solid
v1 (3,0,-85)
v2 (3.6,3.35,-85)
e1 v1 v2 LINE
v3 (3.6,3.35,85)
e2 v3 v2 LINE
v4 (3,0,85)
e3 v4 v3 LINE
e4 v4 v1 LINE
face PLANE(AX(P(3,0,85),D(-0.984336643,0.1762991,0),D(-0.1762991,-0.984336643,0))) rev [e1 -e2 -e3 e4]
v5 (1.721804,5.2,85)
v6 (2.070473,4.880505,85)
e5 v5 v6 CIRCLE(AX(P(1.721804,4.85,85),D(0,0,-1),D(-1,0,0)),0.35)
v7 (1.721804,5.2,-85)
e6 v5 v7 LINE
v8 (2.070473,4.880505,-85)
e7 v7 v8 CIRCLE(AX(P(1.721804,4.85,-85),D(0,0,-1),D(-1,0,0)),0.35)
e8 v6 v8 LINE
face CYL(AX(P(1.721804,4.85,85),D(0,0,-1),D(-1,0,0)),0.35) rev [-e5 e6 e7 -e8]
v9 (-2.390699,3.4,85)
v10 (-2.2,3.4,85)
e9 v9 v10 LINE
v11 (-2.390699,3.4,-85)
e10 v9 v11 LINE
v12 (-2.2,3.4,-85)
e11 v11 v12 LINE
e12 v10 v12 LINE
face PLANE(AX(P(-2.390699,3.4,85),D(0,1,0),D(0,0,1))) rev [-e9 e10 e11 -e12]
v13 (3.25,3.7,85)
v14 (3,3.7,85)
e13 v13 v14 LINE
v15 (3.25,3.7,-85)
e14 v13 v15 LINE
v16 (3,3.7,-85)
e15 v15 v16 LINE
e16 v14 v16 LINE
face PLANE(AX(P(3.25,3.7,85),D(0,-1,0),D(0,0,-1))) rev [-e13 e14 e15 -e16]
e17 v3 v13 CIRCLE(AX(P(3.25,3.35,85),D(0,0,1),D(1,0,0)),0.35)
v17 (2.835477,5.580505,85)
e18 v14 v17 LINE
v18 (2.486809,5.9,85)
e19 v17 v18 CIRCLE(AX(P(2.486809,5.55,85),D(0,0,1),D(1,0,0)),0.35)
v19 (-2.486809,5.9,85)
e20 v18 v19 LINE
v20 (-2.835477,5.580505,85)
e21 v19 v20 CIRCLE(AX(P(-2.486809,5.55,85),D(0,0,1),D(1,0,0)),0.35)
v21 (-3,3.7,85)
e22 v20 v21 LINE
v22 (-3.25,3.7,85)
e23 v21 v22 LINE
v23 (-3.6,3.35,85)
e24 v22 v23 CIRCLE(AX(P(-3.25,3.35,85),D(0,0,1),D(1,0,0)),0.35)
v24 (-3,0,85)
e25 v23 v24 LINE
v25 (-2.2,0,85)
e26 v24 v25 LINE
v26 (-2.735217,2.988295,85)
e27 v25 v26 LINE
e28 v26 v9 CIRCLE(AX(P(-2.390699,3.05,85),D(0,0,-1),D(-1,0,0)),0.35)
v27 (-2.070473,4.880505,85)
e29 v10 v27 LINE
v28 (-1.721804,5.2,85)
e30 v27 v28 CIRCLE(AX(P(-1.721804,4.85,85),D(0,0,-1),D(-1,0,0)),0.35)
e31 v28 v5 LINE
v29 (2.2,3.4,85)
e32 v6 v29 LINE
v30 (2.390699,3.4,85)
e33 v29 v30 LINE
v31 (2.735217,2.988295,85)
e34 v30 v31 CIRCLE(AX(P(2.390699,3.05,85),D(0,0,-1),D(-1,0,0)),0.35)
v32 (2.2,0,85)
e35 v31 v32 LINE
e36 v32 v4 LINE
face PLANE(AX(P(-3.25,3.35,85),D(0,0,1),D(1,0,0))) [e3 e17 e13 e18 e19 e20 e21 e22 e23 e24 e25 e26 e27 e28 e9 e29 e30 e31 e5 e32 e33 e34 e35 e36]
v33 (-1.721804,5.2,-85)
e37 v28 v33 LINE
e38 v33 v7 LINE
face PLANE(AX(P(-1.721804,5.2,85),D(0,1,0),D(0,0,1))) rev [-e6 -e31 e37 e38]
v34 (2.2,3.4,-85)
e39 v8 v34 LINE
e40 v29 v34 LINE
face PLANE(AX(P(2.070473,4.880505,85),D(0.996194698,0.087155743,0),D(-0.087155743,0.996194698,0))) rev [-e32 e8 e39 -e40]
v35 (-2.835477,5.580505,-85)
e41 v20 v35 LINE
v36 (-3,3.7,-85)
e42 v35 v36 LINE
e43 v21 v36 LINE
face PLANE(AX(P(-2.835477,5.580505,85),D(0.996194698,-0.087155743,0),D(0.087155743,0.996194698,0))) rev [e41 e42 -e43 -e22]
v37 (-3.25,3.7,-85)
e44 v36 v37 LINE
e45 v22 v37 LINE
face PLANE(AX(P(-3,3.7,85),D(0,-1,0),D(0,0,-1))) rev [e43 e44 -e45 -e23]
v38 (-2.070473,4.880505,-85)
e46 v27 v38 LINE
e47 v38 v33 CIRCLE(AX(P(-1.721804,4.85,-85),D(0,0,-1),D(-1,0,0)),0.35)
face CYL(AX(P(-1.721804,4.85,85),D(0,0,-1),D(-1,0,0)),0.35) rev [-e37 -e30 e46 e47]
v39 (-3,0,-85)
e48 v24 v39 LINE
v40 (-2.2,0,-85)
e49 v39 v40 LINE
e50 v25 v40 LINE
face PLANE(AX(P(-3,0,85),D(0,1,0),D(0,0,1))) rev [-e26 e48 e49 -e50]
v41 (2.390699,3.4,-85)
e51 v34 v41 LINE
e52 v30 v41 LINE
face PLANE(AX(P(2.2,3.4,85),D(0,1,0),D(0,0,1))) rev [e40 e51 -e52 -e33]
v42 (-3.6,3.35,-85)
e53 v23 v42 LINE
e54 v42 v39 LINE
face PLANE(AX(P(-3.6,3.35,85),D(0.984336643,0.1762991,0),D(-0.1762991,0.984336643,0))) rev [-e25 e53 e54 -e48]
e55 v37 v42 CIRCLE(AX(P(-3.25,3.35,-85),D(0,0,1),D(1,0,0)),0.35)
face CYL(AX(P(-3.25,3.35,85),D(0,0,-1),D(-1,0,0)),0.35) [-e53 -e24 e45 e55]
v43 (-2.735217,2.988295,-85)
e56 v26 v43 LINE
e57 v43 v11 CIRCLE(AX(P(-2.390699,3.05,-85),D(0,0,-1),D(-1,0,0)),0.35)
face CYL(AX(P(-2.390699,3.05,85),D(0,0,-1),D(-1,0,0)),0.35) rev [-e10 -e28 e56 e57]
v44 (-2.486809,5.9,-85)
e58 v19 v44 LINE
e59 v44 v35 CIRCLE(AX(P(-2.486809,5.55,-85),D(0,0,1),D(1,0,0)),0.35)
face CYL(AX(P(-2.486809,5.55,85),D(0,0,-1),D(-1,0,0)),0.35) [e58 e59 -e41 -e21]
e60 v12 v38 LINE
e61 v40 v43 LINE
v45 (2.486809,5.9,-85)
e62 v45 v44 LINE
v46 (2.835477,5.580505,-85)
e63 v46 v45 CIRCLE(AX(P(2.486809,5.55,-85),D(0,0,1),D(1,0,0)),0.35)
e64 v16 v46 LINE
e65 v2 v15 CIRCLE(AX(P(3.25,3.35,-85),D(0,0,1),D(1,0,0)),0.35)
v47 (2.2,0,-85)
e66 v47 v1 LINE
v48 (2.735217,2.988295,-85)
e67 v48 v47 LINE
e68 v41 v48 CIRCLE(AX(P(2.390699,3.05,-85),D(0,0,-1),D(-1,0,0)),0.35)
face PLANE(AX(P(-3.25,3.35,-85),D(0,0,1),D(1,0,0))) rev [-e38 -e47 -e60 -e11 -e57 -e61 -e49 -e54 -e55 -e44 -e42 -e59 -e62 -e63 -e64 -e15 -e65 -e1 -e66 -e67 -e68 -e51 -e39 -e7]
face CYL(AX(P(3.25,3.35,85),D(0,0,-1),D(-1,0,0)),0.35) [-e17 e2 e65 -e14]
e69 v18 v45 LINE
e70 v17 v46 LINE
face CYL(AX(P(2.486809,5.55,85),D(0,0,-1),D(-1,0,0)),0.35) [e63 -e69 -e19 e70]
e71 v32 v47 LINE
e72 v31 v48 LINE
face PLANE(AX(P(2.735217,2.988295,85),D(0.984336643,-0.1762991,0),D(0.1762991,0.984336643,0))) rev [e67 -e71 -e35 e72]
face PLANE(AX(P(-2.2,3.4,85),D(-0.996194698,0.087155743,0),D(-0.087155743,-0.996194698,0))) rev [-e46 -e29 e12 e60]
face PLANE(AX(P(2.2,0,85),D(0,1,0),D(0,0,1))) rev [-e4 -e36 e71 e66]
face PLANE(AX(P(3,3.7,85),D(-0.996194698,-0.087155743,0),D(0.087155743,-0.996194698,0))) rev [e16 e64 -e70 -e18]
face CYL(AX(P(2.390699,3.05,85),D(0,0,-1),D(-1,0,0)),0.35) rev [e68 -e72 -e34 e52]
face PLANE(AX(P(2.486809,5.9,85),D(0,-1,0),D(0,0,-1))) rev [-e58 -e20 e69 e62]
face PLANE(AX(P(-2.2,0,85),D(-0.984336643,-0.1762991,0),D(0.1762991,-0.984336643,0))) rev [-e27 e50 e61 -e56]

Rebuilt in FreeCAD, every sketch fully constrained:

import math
import FreeCAD as App
import Part
import Sketcher
from FreeCAD import Vector
Q = App.Units.Quantity

doc = App.newDocument("Part")
params = doc.addObject("Spreadsheet::Sheet", "Params")
for row, (alias, value) in enumerate([
    ("sketch1_radius", "0.35 mm"),
    ("sketch1_width", "0.8 mm"),
    ("sketch1_width2", "0.25 mm"),
    ("pad1_length", "170 mm"),
], start=1):
    params.set(f"A{row}", alias)
    params.set(f"B{row}", "=" + value)
    params.setAlias(f"B{row}", alias)

body = doc.addObject("PartDesign::Body", "Body")

# Sketch on XY plane
sketch1 = body.newObject("Sketcher::SketchObject", "Sketch")
sketch1.AttachmentSupport = (doc.getObject("XY_Plane"), [""])
sketch1.MapMode = "FlatFace"
sketch1.addGeometry(Part.LineSegment(Vector(-3.6, 3.35, 0), Vector(-3, 0, 0)), False)
sketch1.addGeometry(Part.LineSegment(Vector(-3, 0, 0), Vector(-2.2, 0, 0)), False)
sketch1.addGeometry(Part.LineSegment(Vector(-2.2, 0, 0), Vector(-2.74, 2.99, 0)), False)
sketch1.addGeometry(Part.ArcOfCircle(Part.Circle(Vector(-2.39, 3.05, 0), Vector(0, 0, 1), 0.35), math.radians(90), math.radians(190)), False)
sketch1.addGeometry(Part.LineSegment(Vector(-2.39, 3.4, 0), Vector(-2.2, 3.4, 0)), False)
sketch1.addGeometry(Part.LineSegment(Vector(-2.2, 3.4, 0), Vector(-2.07, 4.88, 0)), False)
sketch1.addGeometry(Part.ArcOfCircle(Part.Circle(Vector(-1.72, 4.85, 0), Vector(0, 0, 1), 0.35), math.radians(90), math.radians(175)), False)
sketch1.addGeometry(Part.LineSegment(Vector(-1.72, 5.2, 0), Vector(1.72, 5.2, 0)), False)
sketch1.addGeometry(Part.ArcOfCircle(Part.Circle(Vector(1.72, 4.85, 0), Vector(0, 0, 1), 0.35), math.radians(5), math.radians(90)), False)
sketch1.addGeometry(Part.LineSegment(Vector(2.07, 4.88, 0), Vector(2.2, 3.4, 0)), False)
sketch1.addGeometry(Part.LineSegment(Vector(2.2, 3.4, 0), Vector(2.39, 3.4, 0)), False)
sketch1.addGeometry(Part.ArcOfCircle(Part.Circle(Vector(2.39, 3.05, 0), Vector(0, 0, 1), 0.35), math.radians(-10), math.radians(90)), False)
sketch1.addGeometry(Part.LineSegment(Vector(2.74, 2.99, 0), Vector(2.2, 0, 0)), False)
sketch1.addGeometry(Part.LineSegment(Vector(2.2, 0, 0), Vector(3, 0, 0)), False)
sketch1.addGeometry(Part.LineSegment(Vector(3, 0, 0), Vector(3.6, 3.35, 0)), False)
sketch1.addGeometry(Part.ArcOfCircle(Part.Circle(Vector(3.25, 3.35, 0), Vector(0, 0, 1), 0.35), math.radians(0), math.radians(90)), False)
sketch1.addGeometry(Part.LineSegment(Vector(3.25, 3.7, 0), Vector(3, 3.7, 0)), False)
sketch1.addGeometry(Part.LineSegment(Vector(3, 3.7, 0), Vector(2.84, 5.58, 0)), False)
sketch1.addGeometry(Part.ArcOfCircle(Part.Circle(Vector(2.49, 5.55, 0), Vector(0, 0, 1), 0.35), math.radians(5), math.radians(90)), False)
sketch1.addGeometry(Part.LineSegment(Vector(2.49, 5.9, 0), Vector(-2.49, 5.9, 0)), False)
sketch1.addGeometry(Part.ArcOfCircle(Part.Circle(Vector(-2.49, 5.55, 0), Vector(0, 0, 1), 0.35), math.radians(90), math.radians(175)), False)
sketch1.addGeometry(Part.LineSegment(Vector(-2.84, 5.58, 0), Vector(-3, 3.7, 0)), False)
sketch1.addGeometry(Part.LineSegment(Vector(-3, 3.7, 0), Vector(-3.25, 3.7, 0)), False)
sketch1.addGeometry(Part.ArcOfCircle(Part.Circle(Vector(-3.25, 3.35, 0), Vector(0, 0, 1), 0.35), math.radians(90), math.radians(180)), False)
sketch1.addConstraint(Sketcher.Constraint("Coincident", 0, 2, 1, 1))
sketch1.addConstraint(Sketcher.Constraint("Coincident", 1, 2, 2, 1))
sketch1.addConstraint(Sketcher.Constraint("Tangent", 2, 2, 3, 2))
sketch1.addConstraint(Sketcher.Constraint("Tangent", 3, 1, 4, 1))
sketch1.addConstraint(Sketcher.Constraint("Coincident", 4, 2, 5, 1))
sketch1.addConstraint(Sketcher.Constraint("Tangent", 5, 2, 6, 2))
sketch1.addConstraint(Sketcher.Constraint("Tangent", 6, 1, 7, 1))
sketch1.addConstraint(Sketcher.Constraint("Tangent", 7, 2, 8, 2))
sketch1.addConstraint(Sketcher.Constraint("Tangent", 8, 1, 9, 1))
sketch1.addConstraint(Sketcher.Constraint("Coincident", 9, 2, 10, 1))
sketch1.addConstraint(Sketcher.Constraint("Tangent", 10, 2, 11, 2))
sketch1.addConstraint(Sketcher.Constraint("Tangent", 11, 1, 12, 1))
sketch1.addConstraint(Sketcher.Constraint("Coincident", 12, 2, 13, 1))
sketch1.addConstraint(Sketcher.Constraint("Coincident", 13, 2, 14, 1))
sketch1.addConstraint(Sketcher.Constraint("Coincident", 14, 2, 15, 1))
sketch1.addConstraint(Sketcher.Constraint("Tangent", 15, 2, 16, 1))
sketch1.addConstraint(Sketcher.Constraint("Coincident", 16, 2, 17, 1))
sketch1.addConstraint(Sketcher.Constraint("Tangent", 17, 2, 18, 1))
sketch1.addConstraint(Sketcher.Constraint("Tangent", 18, 2, 19, 1))
sketch1.addConstraint(Sketcher.Constraint("Tangent", 19, 2, 20, 1))
sketch1.addConstraint(Sketcher.Constraint("Tangent", 20, 2, 21, 1))
sketch1.addConstraint(Sketcher.Constraint("Coincident", 21, 2, 22, 1))
sketch1.addConstraint(Sketcher.Constraint("Tangent", 22, 2, 23, 1))
sketch1.addConstraint(Sketcher.Constraint("Coincident", 23, 2, 0, 1))
sketch1.addConstraint(Sketcher.Constraint("Horizontal", 1))
sketch1.addConstraint(Sketcher.Constraint("Horizontal", 4))
sketch1.addConstraint(Sketcher.Constraint("Horizontal", 7))
sketch1.addConstraint(Sketcher.Constraint("Horizontal", 10))
sketch1.addConstraint(Sketcher.Constraint("Horizontal", 13))
sketch1.addConstraint(Sketcher.Constraint("Horizontal", 16))
sketch1.addConstraint(Sketcher.Constraint("Horizontal", 19))
sketch1.addConstraint(Sketcher.Constraint("Horizontal", 22))
sketch1.addConstraint(Sketcher.Constraint("Equal", 3, 6))
sketch1.addConstraint(Sketcher.Constraint("Equal", 6, 8))
sketch1.addConstraint(Sketcher.Constraint("Equal", 8, 11))
sketch1.addConstraint(Sketcher.Constraint("Equal", 11, 15))
sketch1.addConstraint(Sketcher.Constraint("Equal", 15, 18))
sketch1.addConstraint(Sketcher.Constraint("Equal", 18, 20))
sketch1.addConstraint(Sketcher.Constraint("Equal", 20, 23))
sketch1.addConstraint(Sketcher.Constraint("Symmetric", 1, 2, 12, 2, -1, 1))
sketch1.addConstraint(Sketcher.Constraint("Symmetric", 3, 3, 11, 3, -2))
sketch1.addConstraint(Sketcher.Constraint("Symmetric", 15, 3, 23, 3, -2))
sketch1.addConstraint(Sketcher.Constraint("Symmetric", 5, 2, 8, 1, -2))
sketch1.addConstraint(Sketcher.Constraint("Symmetric", 0, 2, 13, 2, -2))
sketch1.addConstraint(Sketcher.Constraint("Symmetric", 17, 2, 20, 2, -2))
sketch1.addConstraint(Sketcher.Constraint("Parallel", 0, 2))
sketch1.addConstraint(Sketcher.Constraint("Parallel", 12, 14))
sketch1.addConstraint(Sketcher.Constraint("Parallel", 9, 17))
sketch1.addConstraint(Sketcher.Constraint("Horizontal", 23, 3, 14, 2))
sketch1.addConstraint(Sketcher.Constraint("Vertical", 1, 2, 4, 2))
sketch1.addConstraint(Sketcher.Constraint("Vertical", 13, 2, 16, 2))
sketch1.addConstraint(Sketcher.Constraint("Angle", 5, Q("85 deg")))
sketch1.addConstraint(Sketcher.Constraint("Radius", 3, 0.35))
sketch1.addConstraint(Sketcher.Constraint("DistanceX", 1, 1, 1, 2, 0.8))
sketch1.addConstraint(Sketcher.Constraint("DistanceX", 0, 2, -1, 1, 3.0))
sketch1.addConstraint(Sketcher.Constraint("DistanceX", 16, 2, 16, 1, 0.25))
sketch1.addConstraint(Sketcher.Constraint("DistanceY", -1, 1, 3, 1, 3.4))
sketch1.addConstraint(Sketcher.Constraint("DistanceY", -1, 1, 6, 1, 5.2))
sketch1.addConstraint(Sketcher.Constraint("DistanceY", -1, 1, 15, 2, 3.7))
sketch1.addConstraint(Sketcher.Constraint("DistanceY", -1, 1, 18, 2, 5.9))
sketch1.setExpression("Constraints[52]", "Params.sketch1_radius")
sketch1.setExpression("Constraints[53]", "Params.sketch1_width")
sketch1.setExpression("Constraints[55]", "Params.sketch1_width2")
pad1 = body.newObject("PartDesign::Pad", "Pad")
pad1.Profile = sketch1
pad1.setExpression("Length", "Params.pad1_length")
pad1.Midplane = True

doc.recompute()
